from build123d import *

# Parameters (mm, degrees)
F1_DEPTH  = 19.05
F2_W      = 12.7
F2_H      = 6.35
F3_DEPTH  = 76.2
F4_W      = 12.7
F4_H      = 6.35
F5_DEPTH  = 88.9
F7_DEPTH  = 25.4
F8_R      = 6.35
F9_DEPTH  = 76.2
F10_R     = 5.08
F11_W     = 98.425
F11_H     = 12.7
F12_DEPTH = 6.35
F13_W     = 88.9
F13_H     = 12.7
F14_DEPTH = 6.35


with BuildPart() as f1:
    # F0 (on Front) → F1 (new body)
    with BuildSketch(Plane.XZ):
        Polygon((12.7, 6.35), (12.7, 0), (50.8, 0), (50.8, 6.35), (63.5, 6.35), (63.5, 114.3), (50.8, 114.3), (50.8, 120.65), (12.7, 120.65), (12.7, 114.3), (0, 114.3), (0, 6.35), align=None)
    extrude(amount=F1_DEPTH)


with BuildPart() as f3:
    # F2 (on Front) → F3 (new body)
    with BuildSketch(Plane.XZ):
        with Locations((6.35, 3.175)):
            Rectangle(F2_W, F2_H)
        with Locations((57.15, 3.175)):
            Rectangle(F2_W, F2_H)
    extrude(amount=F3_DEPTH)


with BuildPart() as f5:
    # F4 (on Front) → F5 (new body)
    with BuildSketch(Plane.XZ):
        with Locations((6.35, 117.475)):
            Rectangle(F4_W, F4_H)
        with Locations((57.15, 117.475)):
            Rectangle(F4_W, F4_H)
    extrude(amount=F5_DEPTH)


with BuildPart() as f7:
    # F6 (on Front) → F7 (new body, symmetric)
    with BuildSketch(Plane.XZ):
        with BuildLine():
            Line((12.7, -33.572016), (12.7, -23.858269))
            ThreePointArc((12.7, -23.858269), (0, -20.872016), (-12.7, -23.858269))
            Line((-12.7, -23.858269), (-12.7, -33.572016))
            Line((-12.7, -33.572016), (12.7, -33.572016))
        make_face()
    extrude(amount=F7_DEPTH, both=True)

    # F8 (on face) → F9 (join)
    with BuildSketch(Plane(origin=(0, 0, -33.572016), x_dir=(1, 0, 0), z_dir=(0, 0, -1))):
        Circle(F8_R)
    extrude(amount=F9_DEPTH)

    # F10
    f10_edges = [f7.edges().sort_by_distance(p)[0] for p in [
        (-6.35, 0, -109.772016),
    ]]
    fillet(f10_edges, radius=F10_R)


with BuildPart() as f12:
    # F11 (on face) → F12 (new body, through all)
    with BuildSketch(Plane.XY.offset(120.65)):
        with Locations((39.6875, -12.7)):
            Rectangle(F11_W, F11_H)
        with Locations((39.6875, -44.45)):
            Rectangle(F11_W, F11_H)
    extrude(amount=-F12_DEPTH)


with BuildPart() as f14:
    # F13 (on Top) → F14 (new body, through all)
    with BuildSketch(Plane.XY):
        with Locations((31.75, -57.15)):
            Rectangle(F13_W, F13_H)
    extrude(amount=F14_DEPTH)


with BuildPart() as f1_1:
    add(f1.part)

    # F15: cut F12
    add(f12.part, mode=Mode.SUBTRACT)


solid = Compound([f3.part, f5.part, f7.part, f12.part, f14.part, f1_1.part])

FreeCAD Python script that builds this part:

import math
import FreeCAD as App
import Part
import Sketcher
Q = App.Units.Quantity


def edges_at(feature, points):
    """Names of the edges that pass closest to the given points."""
    edges = feature.Shape.Edges
    near = lambda p: min(range(len(edges)), key=lambda i: edges[i].distToShape(Part.Vertex(*p))[0])
    return sorted({f"Edge{near(p) + 1}" for p in points})

doc = App.newDocument("Part")
body = doc.addObject("PartDesign::Body", "Body")

# Sketch on XZ plane
sketch1 = body.newObject("Sketcher::SketchObject", "Sketch")
sketch1.AttachmentSupport = (doc.getObject("XZ_Plane"), [""])
sketch1.MapMode = "FlatFace"
sketch1.addGeometry([
    Part.LineSegment(App.Vector(13, 6, 0), App.Vector(13, 0, 0)),  # 0
    Part.LineSegment(App.Vector(13, 0, 0), App.Vector(51, 0, 0)),  # 1
    Part.LineSegment(App.Vector(51, 0, 0), App.Vector(51, 6, 0)),  # 2
    Part.LineSegment(App.Vector(51, 6, 0), App.Vector(64, 6, 0)),  # 3
    Part.LineSegment(App.Vector(64, 6, 0), App.Vector(64, 114, 0)),  # 4
    Part.LineSegment(App.Vector(64, 114, 0), App.Vector(51, 114, 0)),  # 5
    Part.LineSegment(App.Vector(51, 114, 0), App.Vector(51, 121, 0)),  # 6
    Part.LineSegment(App.Vector(51, 121, 0), App.Vector(13, 121, 0)),  # 7
    Part.LineSegment(App.Vector(13, 121, 0), App.Vector(13, 114, 0)),  # 8
    Part.LineSegment(App.Vector(13, 114, 0), App.Vector(0, 114, 0)),  # 9
    Part.LineSegment(App.Vector(0, 114, 0), App.Vector(0, 6, 0)),  # 10
    Part.LineSegment(App.Vector(0, 6, 0), App.Vector(13, 6, 0)),  # 11
], False)
sketch1.addConstraint([
    Sketcher.Constraint("Coincident", 0, 2, 1, 1),
    Sketcher.Constraint("Coincident", 1, 2, 2, 1),
    Sketcher.Constraint("Coincident", 2, 2, 3, 1),
    Sketcher.Constraint("Coincident", 3, 2, 4, 1),
    Sketcher.Constraint("Coincident", 4, 2, 5, 1),
    Sketcher.Constraint("Coincident", 5, 2, 6, 1),
    Sketcher.Constraint("Coincident", 6, 2, 7, 1),
    Sketcher.Constraint("Coincident", 7, 2, 8, 1),
    Sketcher.Constraint("Coincident", 8, 2, 9, 1),
    Sketcher.Constraint("Coincident", 9, 2, 10, 1),
    Sketcher.Constraint("Coincident", 10, 2, 11, 1),
    Sketcher.Constraint("Coincident", 11, 2, 0, 1),
    Sketcher.Constraint("Vertical", 0),
    Sketcher.Constraint("Horizontal", 1),
    Sketcher.Constraint("Vertical", 2),
    Sketcher.Constraint("Horizontal", 3),
    Sketcher.Constraint("Vertical", 4),
    Sketcher.Constraint("Horizontal", 5),
    Sketcher.Constraint("Vertical", 6),
    Sketcher.Constraint("Horizontal", 7),
    Sketcher.Constraint("Vertical", 8),
    Sketcher.Constraint("Horizontal", 9),
    Sketcher.Constraint("Vertical", 10),
    Sketcher.Constraint("Horizontal", 11),
    Sketcher.Constraint("PointOnObject", 0, 2, -1),
    Sketcher.Constraint("PointOnObject", 9, 2, -2),
    Sketcher.Constraint("Horizontal", 5, 2, 8, 2),
    Sketcher.Constraint("Horizontal", 3, 2, 10, 2),
    Sketcher.Constraint("Vertical", 2, 2, 5, 2),
    Sketcher.Constraint("Vertical", 0, 2, 7, 2),
    Sketcher.Constraint("Equal", 5, 9),
    Sketcher.Constraint("Equal", 2, 6),
    Sketcher.Constraint("DistanceX", 1, 1, 1, 2, Q("1.5 in")),
    Sketcher.Constraint("DistanceX", 3, 1, 3, 2, Q("0.5 in")),
    Sketcher.Constraint("DistanceY", 0, 2, 0, 1, Q("0.25 in")),
    Sketcher.Constraint("DistanceY", 4, 1, 4, 2, Q("4.25 in")),
])
pad1 = body.newObject("PartDesign::Pad", "Pad")
pad1.Profile = sketch1
pad1.Length = Q("0.75 in")
body2 = doc.addObject("PartDesign::Body", "Body001")
body2.AllowCompound = True

# Sketch on XZ plane
sketch2 = body2.newObject("Sketcher::SketchObject", "Sketch001")
sketch2.AttachmentSupport = (doc.getObject("XZ_Plane001"), [""])
sketch2.MapMode = "FlatFace"
sketch2.addGeometry([
    Part.LineSegment(App.Vector(0, 6, 0), App.Vector(0, 0, 0)),  # 0
    Part.LineSegment(App.Vector(0, 0, 0), App.Vector(13, 0, 0)),  # 1
    Part.LineSegment(App.Vector(13, 0, 0), App.Vector(13, 6, 0)),  # 2
    Part.LineSegment(App.Vector(13, 6, 0), App.Vector(0, 6, 0)),  # 3
    Part.LineSegment(App.Vector(51, 6, 0), App.Vector(51, 0, 0)),  # 4
    Part.LineSegment(App.Vector(51, 0, 0), App.Vector(64, 0, 0)),  # 5
    Part.LineSegment(App.Vector(64, 0, 0), App.Vector(64, 6, 0)),  # 6
    Part.LineSegment(App.Vector(64, 6, 0), App.Vector(51, 6, 0)),  # 7
], False)
sketch2.addConstraint([
    Sketcher.Constraint("Coincident", 0, 2, 1, 1),
    Sketcher.Constraint("Coincident", 1, 2, 2, 1),
    Sketcher.Constraint("Coincident", 2, 2, 3, 1),
    Sketcher.Constraint("Coincident", 3, 2, 0, 1),
    Sketcher.Constraint("Coincident", 4, 2, 5, 1),
    Sketcher.Constraint("Coincident", 5, 2, 6, 1),
    Sketcher.Constraint("Coincident", 6, 2, 7, 1),
    Sketcher.Constraint("Coincident", 7, 2, 4, 1),
    Sketcher.Constraint("Vertical", 0),
    Sketcher.Constraint("Horizontal", 1),
    Sketcher.Constraint("Vertical", 2),
    Sketcher.Constraint("Horizontal", 3),
    Sketcher.Constraint("Vertical", 4),
    Sketcher.Constraint("Horizontal", 5),
    Sketcher.Constraint("Vertical", 6),
    Sketcher.Constraint("Horizontal", 7),
    Sketcher.Constraint("Coincident", 0, 2, -1, 1),
    Sketcher.Constraint("PointOnObject", 4, 2, -1),
    Sketcher.Constraint("Horizontal", 3, 2, 6, 2),
    Sketcher.Constraint("Equal", 3, 5),
    Sketcher.Constraint("DistanceX", 1, 1, 1, 2, Q("0.5 in")),
    Sketcher.Constraint("DistanceX", -1, 1, 4, 2, Q("2 in")),
    Sketcher.Constraint("DistanceY", 0, 2, 0, 1, Q("0.25 in")),
])
pad2 = body2.newObject("PartDesign::Pad", "Pad001")
pad2.Profile = sketch2
pad2.Length = Q("3 in")
body3 = doc.addObject("PartDesign::Body", "Body002")
body3.AllowCompound = True

# Sketch on XZ plane
sketch3 = body3.newObject("Sketcher::SketchObject", "Sketch002")
sketch3.AttachmentSupport = (doc.getObject("XZ_Plane002"), [""])
sketch3.MapMode = "FlatFace"
sketch3.addGeometry([
    Part.LineSegment(App.Vector(0, 121, 0), App.Vector(0, 114, 0)),  # 0
    Part.LineSegment(App.Vector(0, 114, 0), App.Vector(13, 114, 0)),  # 1
    Part.LineSegment(App.Vector(13, 114, 0), App.Vector(13, 121, 0)),  # 2
    Part.LineSegment(App.Vector(13, 121, 0), App.Vector(0, 121, 0)),  # 3
    Part.LineSegment(App.Vector(51, 121, 0), App.Vector(51, 114, 0)),  # 4
    Part.LineSegment(App.Vector(51, 114, 0), App.Vector(64, 114, 0)),  # 5
    Part.LineSegment(App.Vector(64, 114, 0), App.Vector(64, 121, 0)),  # 6
    Part.LineSegment(App.Vector(64, 121, 0), App.Vector(51, 121, 0)),  # 7
], False)
sketch3.addConstraint([
    Sketcher.Constraint("Coincident", 0, 2, 1, 1),
    Sketcher.Constraint("Coincident", 1, 2, 2, 1),
    Sketcher.Constraint("Coincident", 2, 2, 3, 1),
    Sketcher.Constraint("Coincident", 3, 2, 0, 1),
    Sketcher.Constraint("Coincident", 4, 2, 5, 1),
    Sketcher.Constraint("Coincident", 5, 2, 6, 1),
    Sketcher.Constraint("Coincident", 6, 2, 7, 1),
    Sketcher.Constraint("Coincident", 7, 2, 4, 1),
    Sketcher.Constraint("Vertical", 0),
    Sketcher.Constraint("Horizontal", 1),
    Sketcher.Constraint("Vertical", 2),
    Sketcher.Constraint("Horizontal", 3),
    Sketcher.Constraint("Vertical", 4),
    Sketcher.Constraint("Horizontal", 5),
    Sketcher.Constraint("Vertical", 6),
    Sketcher.Constraint("Horizontal", 7),
    Sketcher.Constraint("PointOnObject", 0, 2, -2),
    Sketcher.Constraint("Horizontal", 1, 2, 4, 2),
    Sketcher.Constraint("Horizontal", 3, 2, 6, 2),
    Sketcher.Constraint("Equal", 3, 5),
    Sketcher.Constraint("DistanceX", 1, 1, 1, 2, Q("0.5 in")),
    Sketcher.Constraint("DistanceX", -1, 1, 4, 2, Q("2 in")),
    Sketcher.Constraint("DistanceY", 0, 2, 0, 1, Q("0.25 in")),
    Sketcher.Constraint("DistanceY", -1, 1, 0, 2, Q("4.5 in")),
])
pad3 = body3.newObject("PartDesign::Pad", "Pad002")
pad3.Profile = sketch3
pad3.Length = Q("3.5 in")
body4 = doc.addObject("PartDesign::Body", "Body003")

# Sketch on XZ plane
sketch4 = body4.newObject("Sketcher::SketchObject", "Sketch003")
sketch4.AttachmentSupport = (doc.getObject("XZ_Plane003"), [""])
sketch4.MapMode = "FlatFace"
sketch4.addGeometry([
    Part.LineSegment(App.Vector(13, -34, 0), App.Vector(13, -24, 0)),
    Part.ArcOfCircle(Part.Circle(App.Vector(0, -49, 0), App.Vector(0, 0, 1), 28), math.radians(64), math.radians(116)),
    Part.LineSegment(App.Vector(-13, -24, 0), App.Vector(-13, -34, 0)),
    Part.LineSegment(App.Vector(-13, -34, 0), App.Vector(13, -34, 0)),
], False)
sketch4.addConstraint([
    Sketcher.Constraint("Coincident", 0, 2, 1, 1),
    Sketcher.Constraint("Coincident", 1, 2, 2, 1),
    Sketcher.Constraint("Coincident", 2, 2, 3, 1),
    Sketcher.Constraint("Coincident", 3, 2, 0, 1),
    Sketcher.Constraint("Vertical", 0),
    Sketcher.Constraint("Vertical", 2),
    Sketcher.Constraint("Horizontal", 3),
    Sketcher.Constraint("Symmetric", 0, 2, 1, 2, -2),
    Sketcher.Constraint("DistanceX", 3, 1, 3, 2, Q("1 in")),
    Sketcher.Constraint("Radius", 1, Q("28.498541 mm")),
    Sketcher.Constraint("DistanceY", 0, 1, 0, 2, Q("9.713747 mm")),
    Sketcher.Constraint("DistanceY", 0, 2, -1, 1, Q("23.858269 mm")),
])
pad4 = body4.newObject("PartDesign::Pad", "Pad003")
pad4.Profile = sketch4
pad4.Length = Q("2 in")
pad4.Midplane = True

# Sketch on XY plane
sketch5 = body4.newObject("Sketcher::SketchObject", "Sketch004")
sketch5.AttachmentSupport = (doc.getObject("XY_Plane003"), [""])
sketch5.MapMode = "FlatFace"
sketch5.AttachmentOffset = App.Placement(App.Vector(0, 0, -33.572016), App.Rotation())
sketch5.addGeometry(Part.Circle(App.Vector(0, 0, 0), App.Vector(0, 0, 1), 6), False)
sketch5.addConstraint([
    Sketcher.Constraint("Coincident", 0, 3, -1, 1),
    Sketcher.Constraint("Diameter", 0, Q("0.5 in")),
])
pad5 = body4.newObject("PartDesign::Pad", "Pad004")
pad5.Profile = sketch5
pad5.Length = Q("3 in")
pad5.Reversed = True
doc.recompute()

fillet = body4.newObject("PartDesign::Fillet", "Fillet")
fillet.Base = (pad5, edges_at(pad5, [(-6.35, 0, -109.772)]))
fillet.Radius = Q("0.2 in")
body5 = doc.addObject("PartDesign::Body", "Body004")
body5.AllowCompound = True

# Sketch on XY plane
sketch6 = body5.newObject("Sketcher::SketchObject", "Sketch005")
sketch6.AttachmentSupport = (doc.getObject("XY_Plane004"), [""])
sketch6.MapMode = "FlatFace"
sketch6.AttachmentOffset = App.Placement(App.Vector(0, 0, 4.75 * 25.4), App.Rotation())
sketch6.addGeometry([
    Part.LineSegment(App.Vector(-10, -6, 0), App.Vector(-10, -19, 0)),  # 0
    Part.LineSegment(App.Vector(-10, -19, 0), App.Vector(89, -19, 0)),  # 1
    Part.LineSegment(App.Vector(89, -19, 0), App.Vector(89, -6, 0)),  # 2
    Part.LineSegment(App.Vector(89, -6, 0), App.Vector(-10, -6, 0)),  # 3
    Part.LineSegment(App.Vector(-10, -38, 0), App.Vector(-10, -51, 0)),  # 4
    Part.LineSegment(App.Vector(-10, -51, 0), App.Vector(89, -51, 0)),  # 5
    Part.LineSegment(App.Vector(89, -51, 0), App.Vector(89, -38, 0)),  # 6
    Part.LineSegment(App.Vector(89, -38, 0), App.Vector(-10, -38, 0)),  # 7
], False)
sketch6.addConstraint([
    Sketcher.Constraint("Coincident", 0, 2, 1, 1),
    Sketcher.Constraint("Coincident", 1, 2, 2, 1),
    Sketcher.Constraint("Coincident", 2, 2, 3, 1),
    Sketcher.Constraint("Coincident", 3, 2, 0, 1),
    Sketcher.Constraint("Coincident", 4, 2, 5, 1),
    Sketcher.Constraint("Coincident", 5, 2, 6, 1),
    Sketcher.Constraint("Coincident", 6, 2, 7, 1),
    Sketcher.Constraint("Coincident", 7, 2, 4, 1),
    Sketcher.Constraint("Vertical", 0),
    Sketcher.Constraint("Horizontal", 1),
    Sketcher.Constraint("Vertical", 2),
    Sketcher.Constraint("Horizontal", 3),
    Sketcher.Constraint("Vertical", 4),
    Sketcher.Constraint("Horizontal", 5),
    Sketcher.Constraint("Vertical", 6),
    Sketcher.Constraint("Horizontal", 7),
    Sketcher.Constraint("Vertical", 3, 2, 4, 2),
    Sketcher.Constraint("Vertical", 2, 2, 5, 2),
    Sketcher.Constraint("Equal", 2, 4),
    Sketcher.Constraint("DistanceY", 0, 2, 0, 1, Q("0.5 in")),
    Sketcher.Constraint("DistanceY", 4, 2, -1, 1, Q("2 in")),
    Sketcher.Constraint("DistanceX", -1, 1, 1, 2, Q("3.5 in")),
    Sketcher.Constraint("DistanceX", 1, 1, 1, 2, Q("3.875 in")),
    Sketcher.Constraint("DistanceY", 0, 2, -1, 1, Q("0.75 in")),
])
pad6 = body5.newObject("PartDesign::Pad", "Pad005")
pad6.Profile = sketch6
pad6.Length = Q("0.25 in")
pad6.Reversed = True
body6 = doc.addObject("PartDesign::Body", "Body005")

# Sketch on XY plane
sketch7 = body6.newObject("Sketcher::SketchObject", "Sketch006")
sketch7.AttachmentSupport = (doc.getObject("XY_Plane005"), [""])
sketch7.MapMode = "FlatFace"
sketch7.addGeometry([
    Part.LineSegment(App.Vector(-13, -51, 0), App.Vector(-13, -64, 0)),
    Part.LineSegment(App.Vector(-13, -64, 0), App.Vector(76, -64, 0)),
    Part.LineSegment(App.Vector(76, -64, 0), App.Vector(76, -51, 0)),
    Part.LineSegment(App.Vector(76, -51, 0), App.Vector(-13, -51, 0)),
], False)
sketch7.addConstraint([
    Sketcher.Constraint("Coincident", 0, 2, 1, 1),
    Sketcher.Constraint("Coincident", 1, 2, 2, 1),
    Sketcher.Constraint("Coincident", 2, 2, 3, 1),
    Sketcher.Constraint("Coincident", 3, 2, 0, 1),
    Sketcher.Constraint("Vertical", 0),
    Sketcher.Constraint("Horizontal", 1),
    Sketcher.Constraint("Vertical", 2),
    Sketcher.Constraint("Horizontal", 3),
    Sketcher.Constraint("DistanceX", 1, 1, 1, 2, Q("3.5 in")),
    Sketcher.Constraint("DistanceY", 0, 2, 0, 1, Q("0.5 in")),
    Sketcher.Constraint("DistanceX", -1, 1, 1, 2, Q("3 in")),
    Sketcher.Constraint("DistanceY", 2, 2, -1, 1, Q("2 in")),
])
pad7 = body6.newObject("PartDesign::Pad", "Pad006")
pad7.Profile = sketch7
pad7.Length = Q("0.25 in")
doc.recompute()

body7 = doc.addObject("PartDesign::Body", "Body006")
body7.BaseFeature = body5
boolean = body.newObject("PartDesign::Boolean", "Boolean")
boolean.Type = "Cut"
boolean.addObjects([body7])
doc.recompute()

doc.recompute()
